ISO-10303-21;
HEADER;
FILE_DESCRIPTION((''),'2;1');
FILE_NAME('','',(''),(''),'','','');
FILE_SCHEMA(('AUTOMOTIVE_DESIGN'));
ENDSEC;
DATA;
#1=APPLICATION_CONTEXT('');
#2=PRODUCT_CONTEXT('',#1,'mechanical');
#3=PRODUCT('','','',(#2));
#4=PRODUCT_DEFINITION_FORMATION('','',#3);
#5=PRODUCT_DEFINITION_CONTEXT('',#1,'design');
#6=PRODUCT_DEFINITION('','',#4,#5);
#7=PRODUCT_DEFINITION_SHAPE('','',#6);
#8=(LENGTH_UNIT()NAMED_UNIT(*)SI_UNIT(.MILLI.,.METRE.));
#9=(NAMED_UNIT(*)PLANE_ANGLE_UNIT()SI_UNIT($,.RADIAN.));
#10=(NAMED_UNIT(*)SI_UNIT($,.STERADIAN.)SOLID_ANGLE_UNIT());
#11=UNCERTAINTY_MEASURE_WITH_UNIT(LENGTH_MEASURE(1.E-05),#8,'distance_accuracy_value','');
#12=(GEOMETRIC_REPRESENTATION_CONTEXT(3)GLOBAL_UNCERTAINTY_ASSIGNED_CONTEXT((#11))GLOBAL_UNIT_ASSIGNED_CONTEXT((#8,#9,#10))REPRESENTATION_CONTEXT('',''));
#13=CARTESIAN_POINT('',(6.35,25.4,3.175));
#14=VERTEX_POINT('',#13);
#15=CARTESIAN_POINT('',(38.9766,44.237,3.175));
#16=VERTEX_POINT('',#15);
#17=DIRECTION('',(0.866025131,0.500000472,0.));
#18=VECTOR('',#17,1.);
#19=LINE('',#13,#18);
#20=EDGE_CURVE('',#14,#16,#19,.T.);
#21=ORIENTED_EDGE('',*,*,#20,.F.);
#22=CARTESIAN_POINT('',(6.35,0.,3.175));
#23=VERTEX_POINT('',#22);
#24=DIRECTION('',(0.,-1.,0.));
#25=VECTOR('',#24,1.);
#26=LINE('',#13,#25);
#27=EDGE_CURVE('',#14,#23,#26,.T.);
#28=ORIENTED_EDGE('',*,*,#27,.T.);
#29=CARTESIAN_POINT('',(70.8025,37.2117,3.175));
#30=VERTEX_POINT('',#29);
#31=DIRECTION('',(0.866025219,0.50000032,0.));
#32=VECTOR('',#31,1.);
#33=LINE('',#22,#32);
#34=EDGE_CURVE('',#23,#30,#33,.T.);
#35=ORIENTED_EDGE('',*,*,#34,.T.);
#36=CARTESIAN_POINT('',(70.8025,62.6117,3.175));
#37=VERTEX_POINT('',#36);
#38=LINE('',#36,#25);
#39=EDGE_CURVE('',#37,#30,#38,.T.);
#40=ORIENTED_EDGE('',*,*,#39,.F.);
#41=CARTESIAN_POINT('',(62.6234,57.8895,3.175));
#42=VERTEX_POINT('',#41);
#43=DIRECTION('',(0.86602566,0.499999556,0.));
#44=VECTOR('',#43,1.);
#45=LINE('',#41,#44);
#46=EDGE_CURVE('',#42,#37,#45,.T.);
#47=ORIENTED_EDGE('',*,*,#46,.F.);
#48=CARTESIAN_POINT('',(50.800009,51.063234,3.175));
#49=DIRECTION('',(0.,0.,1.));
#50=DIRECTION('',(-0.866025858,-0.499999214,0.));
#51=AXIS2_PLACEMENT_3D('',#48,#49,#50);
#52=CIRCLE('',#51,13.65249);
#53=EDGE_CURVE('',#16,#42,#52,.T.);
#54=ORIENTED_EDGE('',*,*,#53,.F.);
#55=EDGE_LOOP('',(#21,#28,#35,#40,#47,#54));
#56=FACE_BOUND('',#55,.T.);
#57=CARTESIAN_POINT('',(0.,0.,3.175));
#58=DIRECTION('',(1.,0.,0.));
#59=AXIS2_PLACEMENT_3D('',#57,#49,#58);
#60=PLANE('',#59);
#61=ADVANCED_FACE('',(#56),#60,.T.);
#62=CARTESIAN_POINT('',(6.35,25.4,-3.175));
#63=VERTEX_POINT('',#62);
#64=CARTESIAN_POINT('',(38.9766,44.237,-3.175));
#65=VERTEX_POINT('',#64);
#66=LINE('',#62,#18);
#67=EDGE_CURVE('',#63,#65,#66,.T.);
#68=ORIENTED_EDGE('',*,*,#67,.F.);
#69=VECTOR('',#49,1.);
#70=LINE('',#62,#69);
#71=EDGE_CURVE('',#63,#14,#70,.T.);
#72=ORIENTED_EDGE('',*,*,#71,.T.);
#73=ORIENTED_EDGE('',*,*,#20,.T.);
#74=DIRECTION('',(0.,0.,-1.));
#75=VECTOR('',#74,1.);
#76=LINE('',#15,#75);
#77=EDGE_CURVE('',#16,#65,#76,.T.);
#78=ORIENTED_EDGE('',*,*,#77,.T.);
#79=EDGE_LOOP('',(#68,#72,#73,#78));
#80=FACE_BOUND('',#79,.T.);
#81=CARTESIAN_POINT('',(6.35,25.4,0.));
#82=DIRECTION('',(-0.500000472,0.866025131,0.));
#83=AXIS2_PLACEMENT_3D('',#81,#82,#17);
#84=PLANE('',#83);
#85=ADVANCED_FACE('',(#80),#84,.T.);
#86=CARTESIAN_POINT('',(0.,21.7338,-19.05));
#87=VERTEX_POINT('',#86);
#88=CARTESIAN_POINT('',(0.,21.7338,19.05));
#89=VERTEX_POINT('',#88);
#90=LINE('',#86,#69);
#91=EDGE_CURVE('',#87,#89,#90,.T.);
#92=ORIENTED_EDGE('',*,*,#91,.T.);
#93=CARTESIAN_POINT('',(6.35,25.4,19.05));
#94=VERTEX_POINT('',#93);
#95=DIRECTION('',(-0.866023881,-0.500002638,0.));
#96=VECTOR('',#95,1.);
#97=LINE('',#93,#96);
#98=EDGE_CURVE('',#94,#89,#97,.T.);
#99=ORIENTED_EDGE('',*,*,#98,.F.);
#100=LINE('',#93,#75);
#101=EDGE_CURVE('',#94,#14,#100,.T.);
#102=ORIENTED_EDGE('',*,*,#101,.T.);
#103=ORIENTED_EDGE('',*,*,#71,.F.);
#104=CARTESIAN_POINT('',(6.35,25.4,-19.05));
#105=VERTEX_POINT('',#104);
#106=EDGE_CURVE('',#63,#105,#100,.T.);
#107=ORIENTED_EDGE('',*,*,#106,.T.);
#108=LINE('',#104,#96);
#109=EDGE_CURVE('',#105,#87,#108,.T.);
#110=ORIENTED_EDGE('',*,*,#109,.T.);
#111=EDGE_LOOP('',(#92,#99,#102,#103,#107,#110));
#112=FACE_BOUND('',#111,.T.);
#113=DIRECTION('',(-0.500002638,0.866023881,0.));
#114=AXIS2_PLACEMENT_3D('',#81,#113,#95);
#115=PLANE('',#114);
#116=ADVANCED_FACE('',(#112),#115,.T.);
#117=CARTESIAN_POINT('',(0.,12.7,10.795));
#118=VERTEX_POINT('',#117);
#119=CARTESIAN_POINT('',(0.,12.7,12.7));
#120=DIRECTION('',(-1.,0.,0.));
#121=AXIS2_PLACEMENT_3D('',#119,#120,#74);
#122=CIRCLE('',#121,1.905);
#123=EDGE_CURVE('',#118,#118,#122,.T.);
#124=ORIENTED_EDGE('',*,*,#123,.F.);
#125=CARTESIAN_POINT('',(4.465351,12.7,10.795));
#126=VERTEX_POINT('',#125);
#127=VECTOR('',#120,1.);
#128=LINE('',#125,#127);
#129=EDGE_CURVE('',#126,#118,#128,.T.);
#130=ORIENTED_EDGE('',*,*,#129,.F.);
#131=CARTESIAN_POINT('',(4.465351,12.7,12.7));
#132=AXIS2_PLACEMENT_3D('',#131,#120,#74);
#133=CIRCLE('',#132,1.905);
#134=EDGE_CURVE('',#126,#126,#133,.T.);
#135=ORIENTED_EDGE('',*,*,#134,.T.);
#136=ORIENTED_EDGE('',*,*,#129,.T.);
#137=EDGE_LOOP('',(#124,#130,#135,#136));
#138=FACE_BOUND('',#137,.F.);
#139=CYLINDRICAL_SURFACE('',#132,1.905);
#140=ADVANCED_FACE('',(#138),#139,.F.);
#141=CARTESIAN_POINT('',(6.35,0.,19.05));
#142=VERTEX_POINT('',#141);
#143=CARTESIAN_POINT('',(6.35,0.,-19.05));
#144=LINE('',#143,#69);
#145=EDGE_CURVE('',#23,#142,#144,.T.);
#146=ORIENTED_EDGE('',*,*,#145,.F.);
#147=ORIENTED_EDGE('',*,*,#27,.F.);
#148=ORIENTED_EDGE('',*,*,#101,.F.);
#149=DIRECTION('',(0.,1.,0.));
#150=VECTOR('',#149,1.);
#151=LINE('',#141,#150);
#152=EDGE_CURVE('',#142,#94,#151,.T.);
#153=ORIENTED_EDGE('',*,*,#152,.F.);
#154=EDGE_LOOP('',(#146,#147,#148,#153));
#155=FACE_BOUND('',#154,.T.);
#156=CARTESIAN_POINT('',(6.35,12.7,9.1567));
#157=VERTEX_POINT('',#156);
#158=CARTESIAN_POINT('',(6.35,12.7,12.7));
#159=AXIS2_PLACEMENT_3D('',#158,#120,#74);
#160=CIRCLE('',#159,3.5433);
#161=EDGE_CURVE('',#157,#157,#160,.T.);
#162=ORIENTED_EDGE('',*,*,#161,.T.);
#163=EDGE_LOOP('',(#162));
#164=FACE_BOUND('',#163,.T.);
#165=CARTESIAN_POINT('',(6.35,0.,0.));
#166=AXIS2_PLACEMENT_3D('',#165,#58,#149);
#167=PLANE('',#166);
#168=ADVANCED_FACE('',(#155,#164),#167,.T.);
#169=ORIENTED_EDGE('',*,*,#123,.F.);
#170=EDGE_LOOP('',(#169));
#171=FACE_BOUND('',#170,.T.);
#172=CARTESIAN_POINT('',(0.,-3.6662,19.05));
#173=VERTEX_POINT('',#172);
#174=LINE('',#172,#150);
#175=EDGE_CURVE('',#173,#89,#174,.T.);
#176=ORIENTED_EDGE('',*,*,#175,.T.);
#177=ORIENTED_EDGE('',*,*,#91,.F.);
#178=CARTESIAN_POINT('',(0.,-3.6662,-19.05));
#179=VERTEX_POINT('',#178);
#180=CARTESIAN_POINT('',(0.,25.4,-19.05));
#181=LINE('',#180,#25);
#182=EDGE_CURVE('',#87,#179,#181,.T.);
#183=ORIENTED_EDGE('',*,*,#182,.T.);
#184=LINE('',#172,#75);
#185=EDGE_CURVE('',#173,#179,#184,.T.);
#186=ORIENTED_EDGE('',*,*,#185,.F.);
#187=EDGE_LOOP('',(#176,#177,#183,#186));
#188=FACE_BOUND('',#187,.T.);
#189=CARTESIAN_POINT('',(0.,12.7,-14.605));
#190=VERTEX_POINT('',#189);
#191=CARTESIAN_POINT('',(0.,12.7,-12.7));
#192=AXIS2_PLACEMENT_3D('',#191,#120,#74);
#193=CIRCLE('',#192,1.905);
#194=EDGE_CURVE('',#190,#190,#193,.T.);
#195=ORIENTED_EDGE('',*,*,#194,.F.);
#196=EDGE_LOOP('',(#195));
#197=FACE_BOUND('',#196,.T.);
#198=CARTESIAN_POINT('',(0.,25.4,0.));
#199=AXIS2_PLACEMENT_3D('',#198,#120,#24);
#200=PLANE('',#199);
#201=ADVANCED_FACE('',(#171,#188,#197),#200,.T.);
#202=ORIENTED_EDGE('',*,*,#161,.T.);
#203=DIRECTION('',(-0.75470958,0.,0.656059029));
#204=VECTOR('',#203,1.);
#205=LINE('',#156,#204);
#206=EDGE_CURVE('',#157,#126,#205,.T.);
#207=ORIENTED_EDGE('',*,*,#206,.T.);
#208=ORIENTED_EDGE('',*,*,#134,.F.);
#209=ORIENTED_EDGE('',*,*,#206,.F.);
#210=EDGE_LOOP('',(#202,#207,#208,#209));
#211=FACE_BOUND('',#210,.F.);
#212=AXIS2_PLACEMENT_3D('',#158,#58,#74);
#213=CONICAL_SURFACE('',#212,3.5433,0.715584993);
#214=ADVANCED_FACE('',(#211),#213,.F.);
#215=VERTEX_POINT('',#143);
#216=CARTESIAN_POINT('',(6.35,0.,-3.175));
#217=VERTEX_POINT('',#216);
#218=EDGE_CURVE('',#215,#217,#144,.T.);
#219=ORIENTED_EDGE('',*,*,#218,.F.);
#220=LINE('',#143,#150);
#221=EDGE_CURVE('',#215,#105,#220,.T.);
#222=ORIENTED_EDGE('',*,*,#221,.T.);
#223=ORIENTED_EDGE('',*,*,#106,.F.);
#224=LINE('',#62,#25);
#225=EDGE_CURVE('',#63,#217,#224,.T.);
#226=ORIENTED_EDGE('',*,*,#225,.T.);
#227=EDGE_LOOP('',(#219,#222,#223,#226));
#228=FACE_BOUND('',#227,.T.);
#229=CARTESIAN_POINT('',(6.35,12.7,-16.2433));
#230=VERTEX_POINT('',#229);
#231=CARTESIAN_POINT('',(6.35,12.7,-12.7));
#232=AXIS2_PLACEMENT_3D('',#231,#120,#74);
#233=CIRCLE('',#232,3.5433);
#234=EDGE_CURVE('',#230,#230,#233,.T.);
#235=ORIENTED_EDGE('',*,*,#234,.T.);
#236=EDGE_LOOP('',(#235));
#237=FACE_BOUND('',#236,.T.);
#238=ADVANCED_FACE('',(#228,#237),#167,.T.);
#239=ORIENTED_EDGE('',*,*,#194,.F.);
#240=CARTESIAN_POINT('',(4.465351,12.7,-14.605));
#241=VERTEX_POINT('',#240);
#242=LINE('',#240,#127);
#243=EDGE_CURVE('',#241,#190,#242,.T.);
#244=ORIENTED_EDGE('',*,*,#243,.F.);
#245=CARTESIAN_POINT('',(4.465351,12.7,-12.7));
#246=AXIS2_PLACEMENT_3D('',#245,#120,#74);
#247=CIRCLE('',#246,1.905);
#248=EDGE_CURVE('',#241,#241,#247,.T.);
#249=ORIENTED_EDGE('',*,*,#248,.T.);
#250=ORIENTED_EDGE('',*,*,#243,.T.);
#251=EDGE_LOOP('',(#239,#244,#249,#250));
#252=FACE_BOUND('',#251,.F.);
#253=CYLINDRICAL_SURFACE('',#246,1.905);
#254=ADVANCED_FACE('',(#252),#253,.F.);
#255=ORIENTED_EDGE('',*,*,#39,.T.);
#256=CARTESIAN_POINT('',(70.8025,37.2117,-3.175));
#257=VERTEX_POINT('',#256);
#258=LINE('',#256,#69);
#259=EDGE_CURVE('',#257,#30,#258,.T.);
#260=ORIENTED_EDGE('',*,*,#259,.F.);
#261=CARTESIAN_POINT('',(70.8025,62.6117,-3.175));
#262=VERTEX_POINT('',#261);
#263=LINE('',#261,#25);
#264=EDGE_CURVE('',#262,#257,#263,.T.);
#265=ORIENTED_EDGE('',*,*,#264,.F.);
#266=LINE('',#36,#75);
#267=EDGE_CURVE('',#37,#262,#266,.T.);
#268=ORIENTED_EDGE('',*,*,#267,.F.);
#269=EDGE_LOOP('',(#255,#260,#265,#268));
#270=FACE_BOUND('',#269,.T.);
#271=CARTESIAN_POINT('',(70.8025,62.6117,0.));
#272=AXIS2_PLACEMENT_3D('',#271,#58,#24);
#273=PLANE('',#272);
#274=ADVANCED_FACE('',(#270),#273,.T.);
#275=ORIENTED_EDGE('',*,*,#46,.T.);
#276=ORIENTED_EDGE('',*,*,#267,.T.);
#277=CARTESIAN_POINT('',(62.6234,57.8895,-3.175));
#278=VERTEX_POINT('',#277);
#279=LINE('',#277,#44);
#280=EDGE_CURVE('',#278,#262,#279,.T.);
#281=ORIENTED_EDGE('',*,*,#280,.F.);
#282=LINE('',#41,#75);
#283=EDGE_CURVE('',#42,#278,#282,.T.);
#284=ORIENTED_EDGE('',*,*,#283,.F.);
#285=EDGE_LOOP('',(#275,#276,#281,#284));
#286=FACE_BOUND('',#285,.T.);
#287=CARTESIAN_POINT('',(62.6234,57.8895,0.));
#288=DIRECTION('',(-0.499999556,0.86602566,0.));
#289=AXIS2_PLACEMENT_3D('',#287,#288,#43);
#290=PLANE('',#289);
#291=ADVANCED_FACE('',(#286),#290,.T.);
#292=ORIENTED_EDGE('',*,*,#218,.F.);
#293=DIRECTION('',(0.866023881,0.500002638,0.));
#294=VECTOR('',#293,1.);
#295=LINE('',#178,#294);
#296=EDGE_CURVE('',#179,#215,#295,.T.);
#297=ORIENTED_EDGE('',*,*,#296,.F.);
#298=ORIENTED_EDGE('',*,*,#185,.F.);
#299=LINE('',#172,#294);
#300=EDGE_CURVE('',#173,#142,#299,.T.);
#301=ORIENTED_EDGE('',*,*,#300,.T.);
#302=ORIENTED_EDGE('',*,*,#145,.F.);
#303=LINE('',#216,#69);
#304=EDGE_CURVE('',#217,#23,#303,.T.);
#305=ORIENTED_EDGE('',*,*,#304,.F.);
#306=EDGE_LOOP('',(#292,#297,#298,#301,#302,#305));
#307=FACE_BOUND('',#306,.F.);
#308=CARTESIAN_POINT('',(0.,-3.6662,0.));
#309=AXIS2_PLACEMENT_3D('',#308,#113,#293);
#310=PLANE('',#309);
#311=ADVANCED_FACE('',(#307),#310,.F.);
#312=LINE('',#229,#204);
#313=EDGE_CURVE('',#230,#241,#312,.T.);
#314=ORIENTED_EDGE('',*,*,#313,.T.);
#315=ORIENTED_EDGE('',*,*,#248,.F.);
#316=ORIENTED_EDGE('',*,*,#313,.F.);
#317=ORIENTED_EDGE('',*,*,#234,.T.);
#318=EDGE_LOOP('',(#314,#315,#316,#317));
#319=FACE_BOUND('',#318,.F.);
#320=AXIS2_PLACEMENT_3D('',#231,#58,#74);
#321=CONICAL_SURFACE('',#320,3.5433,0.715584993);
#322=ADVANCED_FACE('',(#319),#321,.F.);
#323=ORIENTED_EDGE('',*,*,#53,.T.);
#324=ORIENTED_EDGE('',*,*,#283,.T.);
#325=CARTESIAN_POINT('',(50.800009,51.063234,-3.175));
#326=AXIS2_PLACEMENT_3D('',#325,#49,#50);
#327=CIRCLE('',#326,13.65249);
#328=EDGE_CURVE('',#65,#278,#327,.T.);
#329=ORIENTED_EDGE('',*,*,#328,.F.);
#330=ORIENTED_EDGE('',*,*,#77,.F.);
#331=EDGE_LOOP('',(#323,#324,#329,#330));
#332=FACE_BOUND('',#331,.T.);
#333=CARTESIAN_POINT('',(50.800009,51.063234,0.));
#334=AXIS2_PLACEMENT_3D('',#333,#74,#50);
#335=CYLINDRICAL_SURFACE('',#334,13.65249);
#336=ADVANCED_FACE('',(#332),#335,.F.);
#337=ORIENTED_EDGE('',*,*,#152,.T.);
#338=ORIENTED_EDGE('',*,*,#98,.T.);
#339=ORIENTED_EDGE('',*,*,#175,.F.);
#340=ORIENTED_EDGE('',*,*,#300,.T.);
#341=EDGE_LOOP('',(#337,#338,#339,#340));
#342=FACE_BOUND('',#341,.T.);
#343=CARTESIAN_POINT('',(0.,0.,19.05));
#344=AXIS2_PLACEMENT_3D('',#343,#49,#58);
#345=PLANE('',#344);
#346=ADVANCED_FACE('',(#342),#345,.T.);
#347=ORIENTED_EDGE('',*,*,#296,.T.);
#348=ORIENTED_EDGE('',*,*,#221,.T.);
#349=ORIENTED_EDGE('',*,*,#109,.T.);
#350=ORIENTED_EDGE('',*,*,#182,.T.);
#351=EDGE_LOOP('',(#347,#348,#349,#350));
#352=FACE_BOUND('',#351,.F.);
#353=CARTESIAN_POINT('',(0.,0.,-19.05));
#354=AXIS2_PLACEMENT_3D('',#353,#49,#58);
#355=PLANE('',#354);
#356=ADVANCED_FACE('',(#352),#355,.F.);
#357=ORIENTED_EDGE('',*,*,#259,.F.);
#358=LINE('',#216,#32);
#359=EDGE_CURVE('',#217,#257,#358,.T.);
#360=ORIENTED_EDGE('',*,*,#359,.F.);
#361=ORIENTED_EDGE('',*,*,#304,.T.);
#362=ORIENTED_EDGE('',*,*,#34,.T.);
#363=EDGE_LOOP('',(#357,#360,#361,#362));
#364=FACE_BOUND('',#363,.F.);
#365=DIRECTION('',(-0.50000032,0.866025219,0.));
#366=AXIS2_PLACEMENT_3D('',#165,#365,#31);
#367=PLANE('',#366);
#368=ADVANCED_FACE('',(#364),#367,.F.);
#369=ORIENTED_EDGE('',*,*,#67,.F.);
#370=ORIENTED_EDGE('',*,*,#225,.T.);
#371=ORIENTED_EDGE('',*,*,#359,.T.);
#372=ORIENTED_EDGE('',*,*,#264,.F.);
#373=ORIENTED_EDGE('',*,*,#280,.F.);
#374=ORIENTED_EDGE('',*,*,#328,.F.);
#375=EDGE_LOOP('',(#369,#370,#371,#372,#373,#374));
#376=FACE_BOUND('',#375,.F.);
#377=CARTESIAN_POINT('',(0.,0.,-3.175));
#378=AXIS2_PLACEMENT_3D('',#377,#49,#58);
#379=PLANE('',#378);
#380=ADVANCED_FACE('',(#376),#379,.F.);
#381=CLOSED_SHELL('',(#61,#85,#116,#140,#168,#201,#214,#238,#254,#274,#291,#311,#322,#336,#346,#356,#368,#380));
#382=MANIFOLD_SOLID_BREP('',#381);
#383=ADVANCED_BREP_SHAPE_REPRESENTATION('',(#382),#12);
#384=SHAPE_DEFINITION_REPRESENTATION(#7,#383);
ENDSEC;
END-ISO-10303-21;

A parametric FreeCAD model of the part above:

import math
import FreeCAD as App
import Part
import Sketcher
Q = App.Units.Quantity

doc = App.newDocument("Part")
body = doc.addObject("PartDesign::Body", "Body")

# Sketch on XY plane
sketch1 = body.newObject("Sketcher::SketchObject", "Sketch")
sketch1.AttachmentSupport = (doc.getObject("XY_Plane"), [""])
sketch1.MapMode = "FlatFace"
sketch1.addGeometry([
    Part.LineSegment(App.Vector(0, 25, 0), App.Vector(0, 0, 0)),
    Part.LineSegment(App.Vector(0, 0, 0), App.Vector(6, 0, 0)),
    Part.LineSegment(App.Vector(6, 0, 0), App.Vector(6, 25, 0)),
    Part.LineSegment(App.Vector(6, 25, 0), App.Vector(0, 25, 0)),
], False)
sketch1.addConstraint([
    Sketcher.Constraint("Coincident", 0, 2, 1, 1),
    Sketcher.Constraint("Coincident", 1, 2, 2, 1),
    Sketcher.Constraint("Coincident", 2, 2, 3, 1),
    Sketcher.Constraint("Coincident", 3, 2, 0, 1),
    Sketcher.Constraint("Vertical", 0),
    Sketcher.Constraint("Horizontal", 1),
    Sketcher.Constraint("Vertical", 2),
    Sketcher.Constraint("Horizontal", 3),
    Sketcher.Constraint("Coincident", 0, 2, -1, 1),
    Sketcher.Constraint("DistanceY", 0, 2, 0, 1, Q("1 in")),
    Sketcher.Constraint("DistanceX", 1, 1, 1, 2, Q("0.25 in")),
])
pad1 = body.newObject("PartDesign::Pad", "Pad")
pad1.Profile = sketch1
pad1.Length = Q("1.5 in")
pad1.Midplane = True

# Sketch on XY plane
sketch2 = body.newObject("Sketcher::SketchObject", "Sketch001")
sketch2.AttachmentSupport = (doc.getObject("XY_Plane"), [""])
sketch2.MapMode = "FlatFace"
sketch2.addGeometry([
    Part.LineSegment(App.Vector(39, 44, 0), App.Vector(6, 25, 0)),  # 0
    Part.LineSegment(App.Vector(6, 25, 0), App.Vector(6, 0, 0)),  # 1
    Part.LineSegment(App.Vector(6, 0, 0), App.Vector(71, 37, 0)),  # 2
    Part.LineSegment(App.Vector(71, 37, 0), App.Vector(71, 63, 0)),  # 3
    Part.LineSegment(App.Vector(71, 63, 0), App.Vector(63, 58, 0)),  # 4
    Part.ArcOfCircle(Part.Circle(App.Vector(51, 51, 0), App.Vector(0, 0, 1), 14), math.radians(-150), math.radians(30)),  # 5
], False)
sketch2.addConstraint([
    Sketcher.Constraint("Coincident", 0, 2, 1, 1),
    Sketcher.Constraint("Coincident", 1, 2, 2, 1),
    Sketcher.Constraint("Coincident", 2, 2, 3, 1),
    Sketcher.Constraint("Coincident", 3, 2, 4, 1),
    Sketcher.Constraint("Coincident", 4, 2, 5, 2),
    Sketcher.Constraint("Coincident", 5, 1, 0, 1),
    Sketcher.Constraint("Vertical", 1),
    Sketcher.Constraint("Vertical", 3),
    Sketcher.Constraint("PointOnObject", 1, 2, -1),
    Sketcher.Constraint("Parallel", 0, 2),
    Sketcher.Constraint("Parallel", 2, 4),
    Sketcher.Constraint("Equal", 1, 3),
    Sketcher.Constraint("DistanceX", -1, 1, 5, 3, Q("2 in")),
    Sketcher.Constraint("Angle", 2, Q("30 deg")),
    Sketcher.Constraint("Radius", 5, Q("0.5375 in")),
    Sketcher.Constraint("DistanceY", 1, 2, 1, 1, Q("1 in")),
    Sketcher.Constraint("DistanceX", -1, 1, 0, 2, Q("0.25 in")),
    Sketcher.Constraint("DistanceX", 4, 2, 3, 2, Q("0.322 in")),
    Sketcher.Constraint("DistanceX", -1, 1, 2, 2, Q("2.7875 in")),
])
pad2 = body.newObject("PartDesign::Pad", "Pad001")
pad2.Profile = sketch2
pad2.Length = Q("0.25 in")
pad2.Midplane = True

# Sketch on XY plane
sketch3 = body.newObject("Sketcher::SketchObject", "Sketch002")
sketch3.AttachmentSupport = (doc.getObject("XY_Plane"), [""])
sketch3.MapMode = "FlatFace"
sketch3.addGeometry([
    Part.LineSegment(App.Vector(0, -3.7, 0), App.Vector(6.3, 0, 0)),
    Part.LineSegment(App.Vector(6.3, 0, 0), App.Vector(0, 0, 0)),
    Part.LineSegment(App.Vector(0, 0, 0), App.Vector(0, -3.7, 0)),
], False)
sketch3.addConstraint([
    Sketcher.Constraint("Coincident", 0, 2, 1, 1),
    Sketcher.Constraint("Coincident", 1, 2, 2, 1),
    Sketcher.Constraint("Coincident", 2, 2, 0, 1),
    Sketcher.Constraint("Horizontal", 1),
    Sketcher.Constraint("Vertical", 2),
    Sketcher.Constraint("Coincident", 1, 2, -1, 1),
    Sketcher.Constraint("Angle", 0, Q("30.0002 deg")),
    Sketcher.Constraint("DistanceX", 1, 2, 1, 1, Q("0.25 in")),
])
pad3 = body.newObject("PartDesign::Pad", "Pad002")
pad3.Profile = sketch3
pad3.Length = Q("1.5 in")
pad3.Midplane = True

# Sketch on YZ plane
sketch4 = body.newObject("Sketcher::SketchObject", "Sketch003")
sketch4.AttachmentSupport = (doc.getObject("YZ_Plane"), [""])
sketch4.MapMode = "FlatFace"
sketch4.AttachmentOffset = App.Placement(App.Vector(0, 0, 0.25 * 25.4), App.Rotation())
sketch4.addGeometry([
    Part.Circle(App.Vector(12.7, 12.7, 0), App.Vector(0, 0, 1), 1.9),
    Part.Circle(App.Vector(12.7, -12.7, 0), App.Vector(0, 0, 1), 1.9),
], False)
sketch4.addConstraint([
    Sketcher.Constraint("Equal", 0, 1),
    Sketcher.Constraint("Symmetric", 0, 3, 1, 3, -1),
    Sketcher.Constraint("Diameter", 0, Q("0.15 in")),
    Sketcher.Constraint("DistanceY", 1, 3, 0, 3, Q("1 in")),
    Sketcher.Constraint("DistanceX", -1, 1, 0, 3, Q("0.5 in")),
])
doc.recompute()
hole = body.newObject("PartDesign::Hole", "Hole")
hole.Profile = sketch4
hole.ThreadType = "None"
hole.Diameter = Q("0.15 in")
hole.DepthType = "ThroughAll"
hole.HoleCutType = "Countersink"
hole.HoleCutDiameter = Q("0.279 in")
hole.HoleCutCountersinkAngle = 82

# Sketch on XY plane
sketch5 = body.newObject("Sketcher::SketchObject", "Sketch004")
sketch5.AttachmentSupport = (doc.getObject("XY_Plane"), [""])
sketch5.MapMode = "FlatFace"
sketch5.addGeometry([
    Part.LineSegment(App.Vector(0, 25.4, 0), App.Vector(0, 21.7, 0)),
    Part.LineSegment(App.Vector(0, 21.7, 0), App.Vector(6.3, 25.4, 0)),
    Part.LineSegment(App.Vector(6.3, 25.4, 0), App.Vector(0, 25.4, 0)),
], False)
sketch5.addConstraint([
    Sketcher.Constraint("Coincident", 0, 2, 1, 1),
    Sketcher.Constraint("Coincident", 1, 2, 2, 1),
    Sketcher.Constraint("Coincident", 2, 2, 0, 1),
    Sketcher.Constraint("Vertical", 0),
    Sketcher.Constraint("Horizontal", 2),
    Sketcher.Constraint("PointOnObject", 0, 2, -2),
    Sketcher.Constraint("DistanceY", -1, 1, 1, 2, Q("1 in")),
    Sketcher.Constraint("Angle", 1, Q("30.0002 deg")),
    Sketcher.Constraint("DistanceX", 2, 2, 2, 1, Q("0.25 in")),
])
pocket1 = body.newObject("PartDesign::Pocket", "Pocket")
pocket1.Profile = sketch5
pocket1.Length = Q("1.5 in")
pocket1.Midplane = True

doc.recompute()
